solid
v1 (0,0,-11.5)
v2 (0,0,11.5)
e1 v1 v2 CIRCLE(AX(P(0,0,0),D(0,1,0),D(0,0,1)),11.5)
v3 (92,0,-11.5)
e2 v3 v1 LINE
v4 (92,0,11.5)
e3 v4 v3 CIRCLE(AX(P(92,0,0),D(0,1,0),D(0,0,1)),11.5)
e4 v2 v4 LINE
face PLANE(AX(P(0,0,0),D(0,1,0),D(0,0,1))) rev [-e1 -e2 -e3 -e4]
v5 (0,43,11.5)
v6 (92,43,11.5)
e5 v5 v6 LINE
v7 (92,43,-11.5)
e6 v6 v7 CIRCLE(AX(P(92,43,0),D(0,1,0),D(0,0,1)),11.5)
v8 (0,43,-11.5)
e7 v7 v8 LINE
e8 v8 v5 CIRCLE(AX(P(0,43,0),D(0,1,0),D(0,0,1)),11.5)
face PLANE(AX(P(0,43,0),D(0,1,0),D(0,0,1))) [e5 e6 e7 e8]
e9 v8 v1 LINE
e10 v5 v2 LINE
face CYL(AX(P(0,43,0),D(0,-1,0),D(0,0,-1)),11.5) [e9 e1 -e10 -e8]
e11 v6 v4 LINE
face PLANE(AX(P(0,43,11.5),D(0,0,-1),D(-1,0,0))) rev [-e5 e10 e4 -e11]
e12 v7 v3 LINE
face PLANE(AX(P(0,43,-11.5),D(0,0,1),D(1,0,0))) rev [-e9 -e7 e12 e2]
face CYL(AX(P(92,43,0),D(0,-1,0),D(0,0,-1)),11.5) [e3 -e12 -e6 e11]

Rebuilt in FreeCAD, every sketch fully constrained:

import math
import FreeCAD as App
import Part
import Sketcher
from FreeCAD import Vector
Q = App.Units.Quantity

doc = App.newDocument("Part")
body = doc.addObject("PartDesign::Body", "Body")

# Sketch on XZ plane
sketch1 = body.newObject("Sketcher::SketchObject", "Sketch")
sketch1.AttachmentSupport = (doc.getObject("XZ_Plane"), [""])
sketch1.MapMode = "FlatFace"
sketch1.addGeometry([
    Part.LineSegment(Vector(92, -12, 0), Vector(0, -12, 0)),
    Part.ArcOfCircle(Part.Circle(Vector(0, 0, 0), Vector(0, 0, 1), 12), math.radians(90), math.radians(270)),
    Part.LineSegment(Vector(0, 12, 0), Vector(92, 12, 0)),
    Part.ArcOfCircle(Part.Circle(Vector(92, 0, 0), Vector(0, 0, 1), 12), math.radians(-90), math.radians(90)),
], False)
sketch1.addConstraint([
    Sketcher.Constraint("Tangent", 0, 2, 1, 2),
    Sketcher.Constraint("Tangent", 1, 1, 2, 1),
    Sketcher.Constraint("Tangent", 2, 2, 3, 2),
    Sketcher.Constraint("Tangent", 3, 1, 0, 1),
    Sketcher.Constraint("Horizontal", 0),
    Sketcher.Constraint("Horizontal", 2),
    Sketcher.Constraint("Coincident", 1, 3, -1, 1),
    Sketcher.Constraint("Radius", 1, Q("11.5 mm")),
    Sketcher.Constraint("DistanceX", 0, 2, 0, 1, Q("92 mm")),
])
pad1 = body.newObject("PartDesign::Pad", "Pad")
pad1.Profile = sketch1
pad1.Length = 43
pad1.Reversed = True

doc.recompute()
